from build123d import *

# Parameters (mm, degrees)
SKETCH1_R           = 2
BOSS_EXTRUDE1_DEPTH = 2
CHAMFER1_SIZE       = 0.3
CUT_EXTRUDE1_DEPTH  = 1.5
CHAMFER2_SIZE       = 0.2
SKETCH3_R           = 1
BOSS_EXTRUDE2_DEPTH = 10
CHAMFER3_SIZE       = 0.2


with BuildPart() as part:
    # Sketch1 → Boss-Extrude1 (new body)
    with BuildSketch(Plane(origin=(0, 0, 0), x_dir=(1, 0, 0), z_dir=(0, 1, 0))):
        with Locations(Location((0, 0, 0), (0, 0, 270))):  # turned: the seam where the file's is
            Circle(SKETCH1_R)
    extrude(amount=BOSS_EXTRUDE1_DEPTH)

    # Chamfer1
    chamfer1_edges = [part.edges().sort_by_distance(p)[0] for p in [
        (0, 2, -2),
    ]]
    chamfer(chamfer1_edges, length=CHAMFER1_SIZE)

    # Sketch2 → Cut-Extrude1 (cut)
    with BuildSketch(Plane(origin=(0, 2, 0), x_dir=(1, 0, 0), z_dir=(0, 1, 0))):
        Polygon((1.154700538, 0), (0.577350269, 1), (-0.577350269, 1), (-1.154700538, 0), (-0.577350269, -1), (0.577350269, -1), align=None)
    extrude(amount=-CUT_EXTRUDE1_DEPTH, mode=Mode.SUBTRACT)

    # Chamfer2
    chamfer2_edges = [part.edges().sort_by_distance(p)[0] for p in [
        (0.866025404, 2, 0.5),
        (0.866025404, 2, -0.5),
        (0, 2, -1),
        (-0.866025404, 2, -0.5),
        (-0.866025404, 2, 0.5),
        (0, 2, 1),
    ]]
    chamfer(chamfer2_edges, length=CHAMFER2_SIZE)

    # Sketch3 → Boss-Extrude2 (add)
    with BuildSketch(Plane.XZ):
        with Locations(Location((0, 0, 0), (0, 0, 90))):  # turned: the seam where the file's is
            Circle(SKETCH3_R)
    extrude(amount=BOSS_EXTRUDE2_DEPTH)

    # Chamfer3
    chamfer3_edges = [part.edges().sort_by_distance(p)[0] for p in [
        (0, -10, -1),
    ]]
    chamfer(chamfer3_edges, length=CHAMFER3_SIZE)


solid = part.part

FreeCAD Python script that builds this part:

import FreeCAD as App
import Part
import Sketcher
Q = App.Units.Quantity


def edges_at(feature, points):
    """Names of the edges that pass closest to the given points."""
    edges = feature.Shape.Edges
    near = lambda p: min(range(len(edges)), key=lambda i: edges[i].distToShape(Part.Vertex(*p))[0])
    return sorted({f"Edge{near(p) + 1}" for p in points})


def add_polygon(sketch, points):
    """Adds a closed chain of lines whose ends are joined by coincident constraints."""
    first, n = sketch.GeometryCount, len(points)
    for a, b in zip(points, points[1:] + points[:1]):
        sketch.addGeometry(Part.LineSegment(App.Vector(*a, 0), App.Vector(*b, 0)), False)
    for i in range(n):
        sketch.addConstraint(Sketcher.Constraint("Coincident", first + i, 2, first + (i + 1) % n, 1))

doc = App.newDocument("Part")
body = doc.addObject("PartDesign::Body", "Body")

# Sketch on XZ plane
sketch1 = body.newObject("Sketcher::SketchObject", "Sketch")
sketch1.AttachmentSupport = (doc.getObject("XZ_Plane"), [""])
sketch1.MapMode = "FlatFace"
sketch1.addGeometry(Part.Circle(App.Vector(0, 0, 0), App.Vector(0, 0, 1), 2), False)
sketch1.addConstraint(Sketcher.Constraint("Coincident", 0, 3, -1, 1))
sketch1.addConstraint(Sketcher.Constraint("Diameter", 0, Q("4 mm")))
pad1 = body.newObject("PartDesign::Pad", "Pad")
pad1.Profile = sketch1
pad1.Length = 2
pad1.Reversed = True
doc.recompute()

chamfer = body.newObject("PartDesign::Chamfer", "Chamfer")
chamfer.Base = (pad1, edges_at(pad1, [(0, 2, -2)]))
chamfer.Size = 0.3

# Sketch on XZ plane
sketch2 = body.newObject("Sketcher::SketchObject", "Sketch001")
sketch2.AttachmentSupport = (doc.getObject("XZ_Plane"), [""])
sketch2.MapMode = "FlatFace"
sketch2.AttachmentOffset = App.Placement(App.Vector(0, 0, -2), App.Rotation())
add_polygon(sketch2, [(1.2, 0), (0.6, -1), (-0.6, -1), (-1.2, 0), (-0.6, 1), (0.6, 1)])  # lines 0-5
sketch2.addConstraint(Sketcher.Constraint("Horizontal", 1))
sketch2.addConstraint(Sketcher.Constraint("Horizontal", 4))
sketch2.addConstraint(Sketcher.Constraint("Symmetric", 0, 2, 3, 2, -1, 1))
sketch2.addConstraint(Sketcher.Constraint("Symmetric", 2, 2, 5, 2, -1, 1))
sketch2.addConstraint(Sketcher.Constraint("PointOnObject", 2, 2, -1))
sketch2.addConstraint(Sketcher.Constraint("Parallel", 2, 5))
sketch2.addConstraint(Sketcher.Constraint("Vertical", 1, 2, 3, 2))
sketch2.addConstraint(Sketcher.Constraint("Angle", 0, Q("-120 deg")))
sketch2.addConstraint(Sketcher.Constraint("DistanceY", 0, 2, -1, 1, Q("1 mm")))
sketch2.addConstraint(Sketcher.Constraint("DistanceX", 1, 2, 1, 1, Q("1.154701 mm")))
pocket1 = body.newObject("PartDesign::Pocket", "Pocket")
pocket1.Profile = sketch2
pocket1.Length = 1.5
pocket1.Reversed = True
doc.recompute()

chamfer2 = body.newObject("PartDesign::Chamfer", "Chamfer001")
chamfer2.Base = (pocket1, edges_at(pocket1, [
    (0.866, 2, 0.5),
    (0.866, 2, -0.5),
    (0, 2, -1),
    (-0.866, 2, -0.5),
    (-0.866, 2, 0.5),
    (0, 2, 1),
]))
chamfer2.Size = 0.2

# Sketch on XZ plane
sketch3 = body.newObject("Sketcher::SketchObject", "Sketch002")
sketch3.AttachmentSupport = (doc.getObject("XZ_Plane"), [""])
sketch3.MapMode = "FlatFace"
sketch3.addGeometry(Part.Circle(App.Vector(0, 0, 0), App.Vector(0, 0, 1), 1), False)
sketch3.addConstraint(Sketcher.Constraint("Coincident", 0, 3, -1, 1))
sketch3.addConstraint(Sketcher.Constraint("Diameter", 0, Q("2 mm")))
pad2 = body.newObject("PartDesign::Pad", "Pad001")
pad2.Profile = sketch3
pad2.Length = 10
doc.recompute()

chamfer3 = body.newObject("PartDesign::Chamfer", "Chamfer002")
chamfer3.Base = (pad2, edges_at(pad2, [(0, -10, -1)]))
chamfer3.Size = 0.2

doc.recompute()
